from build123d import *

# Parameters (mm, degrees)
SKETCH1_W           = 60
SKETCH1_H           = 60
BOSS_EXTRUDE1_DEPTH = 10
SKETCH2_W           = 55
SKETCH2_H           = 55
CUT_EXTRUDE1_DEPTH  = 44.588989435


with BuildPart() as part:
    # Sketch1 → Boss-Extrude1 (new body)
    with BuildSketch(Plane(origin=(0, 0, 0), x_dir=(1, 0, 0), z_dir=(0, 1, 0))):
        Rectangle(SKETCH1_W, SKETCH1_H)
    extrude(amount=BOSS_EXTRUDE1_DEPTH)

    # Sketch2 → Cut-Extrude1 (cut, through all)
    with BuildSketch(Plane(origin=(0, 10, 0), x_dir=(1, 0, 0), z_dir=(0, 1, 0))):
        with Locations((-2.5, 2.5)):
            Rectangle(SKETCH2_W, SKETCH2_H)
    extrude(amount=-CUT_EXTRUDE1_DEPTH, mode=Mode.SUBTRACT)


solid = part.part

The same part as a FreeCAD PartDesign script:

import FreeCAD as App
import Part
import Sketcher
Q = App.Units.Quantity


def add_polygon(sketch, points):
    """Adds a closed chain of lines whose ends are joined by coincident constraints."""
    first, n = sketch.GeometryCount, len(points)
    for a, b in zip(points, points[1:] + points[:1]):
        sketch.addGeometry(Part.LineSegment(App.Vector(*a, 0), App.Vector(*b, 0)), False)
    for i in range(n):
        sketch.addConstraint(Sketcher.Constraint("Coincident", first + i, 2, first + (i + 1) % n, 1))

doc = App.newDocument("Part")
body = doc.addObject("PartDesign::Body", "Body")

sketch1 = doc.addObject("Sketcher::SketchObject", "Sketch")
body.addObject(sketch1)
sketch1.AttachmentSupport = (doc.XZ_Plane, [""])
sketch1.MapMode = "FlatFace"
add_polygon(sketch1, [(-30, -30), (-30, 30), (30, 30), (30, -30)])
sketch1.addConstraint([
    Sketcher.Constraint("Vertical", 0),
    Sketcher.Constraint("Horizontal", 1),
    Sketcher.Constraint("Vertical", 2),
    Sketcher.Constraint("Horizontal", 3),
    Sketcher.Constraint("Symmetric", 0, 2, 2, 2, -1, 1),
    Sketcher.Constraint("Equal", 3, 0),
    Sketcher.Constraint("DistanceX", 1, 1, 1, 2, Q("60 mm")),
])
pad1 = doc.addObject("PartDesign::Pad", "Pad")
body.addObject(pad1)
pad1.Profile = sketch1
pad1.Length = 10
pad1.Reversed = True

sketch2 = doc.addObject("Sketcher::SketchObject", "Sketch001")
body.addObject(sketch2)
sketch2.AttachmentSupport = (doc.XZ_Plane, [""])
sketch2.MapMode = "FlatFace"
sketch2.AttachmentOffset = App.Placement(App.Vector(0, 0, -10), App.Rotation())
add_polygon(sketch2, [(-30, -30), (-30, 25), (25, 25), (25, -30)])
sketch2.addConstraint([
    Sketcher.Constraint("Vertical", 0),
    Sketcher.Constraint("Horizontal", 1),
    Sketcher.Constraint("Vertical", 2),
    Sketcher.Constraint("Horizontal", 3),
    Sketcher.Constraint("Equal", 3, 0),
    Sketcher.Constraint("DistanceX", 1, 1, 1, 2, Q("55 mm")),
    Sketcher.Constraint("DistanceX", 0, 2, -1, 1, Q("30 mm")),
    Sketcher.Constraint("DistanceY", -1, 1, 0, 2, Q("25 mm")),
])
pocket1 = doc.addObject("PartDesign::Pocket", "Pocket")
body.addObject(pocket1)
pocket1.Profile = sketch2
pocket1.Type = "ThroughAll"
pocket1.Reversed = True

doc.recompute()
